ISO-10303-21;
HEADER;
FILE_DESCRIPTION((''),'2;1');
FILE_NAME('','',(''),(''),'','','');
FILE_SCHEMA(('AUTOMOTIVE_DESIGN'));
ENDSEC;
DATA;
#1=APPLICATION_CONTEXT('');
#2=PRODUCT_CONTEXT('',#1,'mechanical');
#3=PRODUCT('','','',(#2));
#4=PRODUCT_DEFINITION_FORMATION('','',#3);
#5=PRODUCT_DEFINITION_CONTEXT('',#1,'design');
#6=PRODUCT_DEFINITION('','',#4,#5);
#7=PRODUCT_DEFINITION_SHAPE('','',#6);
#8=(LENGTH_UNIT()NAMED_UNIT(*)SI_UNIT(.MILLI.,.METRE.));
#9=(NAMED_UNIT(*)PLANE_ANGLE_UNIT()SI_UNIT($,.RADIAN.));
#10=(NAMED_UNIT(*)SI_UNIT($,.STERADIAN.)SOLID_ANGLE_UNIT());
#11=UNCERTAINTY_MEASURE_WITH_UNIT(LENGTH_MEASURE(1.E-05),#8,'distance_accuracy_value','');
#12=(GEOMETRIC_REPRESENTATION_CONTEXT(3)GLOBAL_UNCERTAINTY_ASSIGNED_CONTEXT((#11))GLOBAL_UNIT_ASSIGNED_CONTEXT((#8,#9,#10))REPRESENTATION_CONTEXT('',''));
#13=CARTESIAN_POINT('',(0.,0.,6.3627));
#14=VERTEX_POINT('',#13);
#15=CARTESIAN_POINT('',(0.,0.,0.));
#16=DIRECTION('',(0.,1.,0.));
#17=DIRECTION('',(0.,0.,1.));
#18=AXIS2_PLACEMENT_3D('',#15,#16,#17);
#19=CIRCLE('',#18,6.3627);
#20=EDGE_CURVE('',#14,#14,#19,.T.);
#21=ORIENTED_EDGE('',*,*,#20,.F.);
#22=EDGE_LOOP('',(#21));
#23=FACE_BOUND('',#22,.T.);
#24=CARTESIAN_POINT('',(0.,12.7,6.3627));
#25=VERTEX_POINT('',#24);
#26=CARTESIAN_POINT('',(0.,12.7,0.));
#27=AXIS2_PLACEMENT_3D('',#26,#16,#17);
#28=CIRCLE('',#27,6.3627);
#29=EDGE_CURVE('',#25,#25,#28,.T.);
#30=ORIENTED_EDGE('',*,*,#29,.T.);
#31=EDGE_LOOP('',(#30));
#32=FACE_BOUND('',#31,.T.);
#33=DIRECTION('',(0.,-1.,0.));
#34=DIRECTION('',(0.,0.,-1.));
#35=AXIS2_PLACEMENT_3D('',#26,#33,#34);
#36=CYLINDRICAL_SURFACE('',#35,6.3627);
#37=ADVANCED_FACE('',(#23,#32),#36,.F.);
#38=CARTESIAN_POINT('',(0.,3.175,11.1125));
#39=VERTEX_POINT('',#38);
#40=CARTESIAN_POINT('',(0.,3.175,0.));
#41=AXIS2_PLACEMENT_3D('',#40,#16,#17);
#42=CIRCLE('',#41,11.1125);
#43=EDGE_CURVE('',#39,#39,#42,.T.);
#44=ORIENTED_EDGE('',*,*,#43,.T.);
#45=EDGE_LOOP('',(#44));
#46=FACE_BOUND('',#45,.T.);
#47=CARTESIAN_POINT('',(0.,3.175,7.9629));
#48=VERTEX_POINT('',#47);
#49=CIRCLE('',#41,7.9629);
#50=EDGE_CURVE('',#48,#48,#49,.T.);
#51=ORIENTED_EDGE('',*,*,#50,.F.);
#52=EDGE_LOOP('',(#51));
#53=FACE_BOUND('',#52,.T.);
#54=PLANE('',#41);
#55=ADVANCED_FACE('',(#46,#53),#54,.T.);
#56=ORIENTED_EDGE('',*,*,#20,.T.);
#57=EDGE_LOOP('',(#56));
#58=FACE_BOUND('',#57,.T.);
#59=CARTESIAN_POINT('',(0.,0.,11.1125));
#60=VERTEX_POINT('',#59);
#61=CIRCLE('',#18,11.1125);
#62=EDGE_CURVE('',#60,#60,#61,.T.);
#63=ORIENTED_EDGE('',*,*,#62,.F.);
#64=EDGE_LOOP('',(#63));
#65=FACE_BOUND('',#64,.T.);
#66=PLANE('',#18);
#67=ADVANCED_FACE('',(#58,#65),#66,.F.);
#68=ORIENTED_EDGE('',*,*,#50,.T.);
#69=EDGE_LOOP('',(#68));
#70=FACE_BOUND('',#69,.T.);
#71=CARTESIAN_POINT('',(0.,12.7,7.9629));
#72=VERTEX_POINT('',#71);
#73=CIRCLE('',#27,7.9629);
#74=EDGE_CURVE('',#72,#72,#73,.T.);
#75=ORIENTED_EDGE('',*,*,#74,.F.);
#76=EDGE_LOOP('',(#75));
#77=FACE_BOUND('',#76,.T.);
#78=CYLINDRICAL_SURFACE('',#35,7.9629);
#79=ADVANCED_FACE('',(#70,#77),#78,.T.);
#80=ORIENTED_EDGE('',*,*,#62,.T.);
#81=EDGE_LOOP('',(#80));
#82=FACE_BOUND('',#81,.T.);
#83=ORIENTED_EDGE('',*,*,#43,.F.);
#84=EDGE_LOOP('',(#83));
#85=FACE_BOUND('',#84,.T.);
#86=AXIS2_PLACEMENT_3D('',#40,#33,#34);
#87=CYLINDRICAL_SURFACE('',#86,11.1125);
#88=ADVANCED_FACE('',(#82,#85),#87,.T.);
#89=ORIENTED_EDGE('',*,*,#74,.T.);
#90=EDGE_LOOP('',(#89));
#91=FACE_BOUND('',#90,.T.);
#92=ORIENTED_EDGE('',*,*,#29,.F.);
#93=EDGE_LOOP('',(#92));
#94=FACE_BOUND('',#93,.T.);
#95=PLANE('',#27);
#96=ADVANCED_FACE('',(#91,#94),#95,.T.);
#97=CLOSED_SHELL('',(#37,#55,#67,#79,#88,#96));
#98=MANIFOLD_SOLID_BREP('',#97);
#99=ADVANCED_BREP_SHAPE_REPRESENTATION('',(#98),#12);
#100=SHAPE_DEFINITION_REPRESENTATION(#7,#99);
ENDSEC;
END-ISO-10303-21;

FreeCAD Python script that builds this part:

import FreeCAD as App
import Part
import Sketcher

V = App.Vector
Q = App.Units.Quantity

doc = App.newDocument("Part")
body = doc.addObject("PartDesign::Body", "Body")

# Sketch on XZ plane
sketch1 = body.newObject("Sketcher::SketchObject", "Sketch")
sketch1.AttachmentSupport = (doc.getObject("XZ_Plane"), [""])
sketch1.MapMode = "FlatFace"
sketch1.addGeometry(Part.Circle(V(0, 0, 0), V(0, 0, 1), 8), False)
sketch1.addGeometry(Part.Circle(V(0, 0, 0), V(0, 0, 1), 6), False)
sketch1.addConstraint(Sketcher.Constraint("Coincident", 0, 3, -1, 1))
sketch1.addConstraint(Sketcher.Constraint("Coincident", 1, 3, -1, 1))
sketch1.addConstraint(Sketcher.Constraint("Diameter", 0, Q("0.627 in")))
sketch1.addConstraint(Sketcher.Constraint("Diameter", 1, Q("0.501 in")))
pad1 = body.newObject("PartDesign::Pad", "Pad")
pad1.Profile = sketch1
pad1.Length = Q("0.5 in")
pad1.Reversed = True

# Sketch on XZ plane
sketch2 = body.newObject("Sketcher::SketchObject", "Sketch001")
sketch2.AttachmentSupport = (doc.getObject("XZ_Plane"), [""])
sketch2.MapMode = "FlatFace"
sketch2.addGeometry(Part.Circle(V(0, 0, 0), V(0, 0, 1), 11), False)
sketch2.addGeometry(Part.Circle(V(0, 0, 0), V(0, 0, 1), 8), False)
sketch2.addConstraint(Sketcher.Constraint("Coincident", 0, 3, -1, 1))
sketch2.addConstraint(Sketcher.Constraint("Coincident", 1, 3, -1, 1))
sketch2.addConstraint(Sketcher.Constraint("Diameter", 0, Q("0.875 in")))
sketch2.addConstraint(Sketcher.Constraint("Diameter", 1, Q("0.627 in")))
pad2 = body.newObject("PartDesign::Pad", "Pad001")
pad2.Profile = sketch2
pad2.Length = Q("0.125 in")
pad2.Reversed = True

doc.recompute()
